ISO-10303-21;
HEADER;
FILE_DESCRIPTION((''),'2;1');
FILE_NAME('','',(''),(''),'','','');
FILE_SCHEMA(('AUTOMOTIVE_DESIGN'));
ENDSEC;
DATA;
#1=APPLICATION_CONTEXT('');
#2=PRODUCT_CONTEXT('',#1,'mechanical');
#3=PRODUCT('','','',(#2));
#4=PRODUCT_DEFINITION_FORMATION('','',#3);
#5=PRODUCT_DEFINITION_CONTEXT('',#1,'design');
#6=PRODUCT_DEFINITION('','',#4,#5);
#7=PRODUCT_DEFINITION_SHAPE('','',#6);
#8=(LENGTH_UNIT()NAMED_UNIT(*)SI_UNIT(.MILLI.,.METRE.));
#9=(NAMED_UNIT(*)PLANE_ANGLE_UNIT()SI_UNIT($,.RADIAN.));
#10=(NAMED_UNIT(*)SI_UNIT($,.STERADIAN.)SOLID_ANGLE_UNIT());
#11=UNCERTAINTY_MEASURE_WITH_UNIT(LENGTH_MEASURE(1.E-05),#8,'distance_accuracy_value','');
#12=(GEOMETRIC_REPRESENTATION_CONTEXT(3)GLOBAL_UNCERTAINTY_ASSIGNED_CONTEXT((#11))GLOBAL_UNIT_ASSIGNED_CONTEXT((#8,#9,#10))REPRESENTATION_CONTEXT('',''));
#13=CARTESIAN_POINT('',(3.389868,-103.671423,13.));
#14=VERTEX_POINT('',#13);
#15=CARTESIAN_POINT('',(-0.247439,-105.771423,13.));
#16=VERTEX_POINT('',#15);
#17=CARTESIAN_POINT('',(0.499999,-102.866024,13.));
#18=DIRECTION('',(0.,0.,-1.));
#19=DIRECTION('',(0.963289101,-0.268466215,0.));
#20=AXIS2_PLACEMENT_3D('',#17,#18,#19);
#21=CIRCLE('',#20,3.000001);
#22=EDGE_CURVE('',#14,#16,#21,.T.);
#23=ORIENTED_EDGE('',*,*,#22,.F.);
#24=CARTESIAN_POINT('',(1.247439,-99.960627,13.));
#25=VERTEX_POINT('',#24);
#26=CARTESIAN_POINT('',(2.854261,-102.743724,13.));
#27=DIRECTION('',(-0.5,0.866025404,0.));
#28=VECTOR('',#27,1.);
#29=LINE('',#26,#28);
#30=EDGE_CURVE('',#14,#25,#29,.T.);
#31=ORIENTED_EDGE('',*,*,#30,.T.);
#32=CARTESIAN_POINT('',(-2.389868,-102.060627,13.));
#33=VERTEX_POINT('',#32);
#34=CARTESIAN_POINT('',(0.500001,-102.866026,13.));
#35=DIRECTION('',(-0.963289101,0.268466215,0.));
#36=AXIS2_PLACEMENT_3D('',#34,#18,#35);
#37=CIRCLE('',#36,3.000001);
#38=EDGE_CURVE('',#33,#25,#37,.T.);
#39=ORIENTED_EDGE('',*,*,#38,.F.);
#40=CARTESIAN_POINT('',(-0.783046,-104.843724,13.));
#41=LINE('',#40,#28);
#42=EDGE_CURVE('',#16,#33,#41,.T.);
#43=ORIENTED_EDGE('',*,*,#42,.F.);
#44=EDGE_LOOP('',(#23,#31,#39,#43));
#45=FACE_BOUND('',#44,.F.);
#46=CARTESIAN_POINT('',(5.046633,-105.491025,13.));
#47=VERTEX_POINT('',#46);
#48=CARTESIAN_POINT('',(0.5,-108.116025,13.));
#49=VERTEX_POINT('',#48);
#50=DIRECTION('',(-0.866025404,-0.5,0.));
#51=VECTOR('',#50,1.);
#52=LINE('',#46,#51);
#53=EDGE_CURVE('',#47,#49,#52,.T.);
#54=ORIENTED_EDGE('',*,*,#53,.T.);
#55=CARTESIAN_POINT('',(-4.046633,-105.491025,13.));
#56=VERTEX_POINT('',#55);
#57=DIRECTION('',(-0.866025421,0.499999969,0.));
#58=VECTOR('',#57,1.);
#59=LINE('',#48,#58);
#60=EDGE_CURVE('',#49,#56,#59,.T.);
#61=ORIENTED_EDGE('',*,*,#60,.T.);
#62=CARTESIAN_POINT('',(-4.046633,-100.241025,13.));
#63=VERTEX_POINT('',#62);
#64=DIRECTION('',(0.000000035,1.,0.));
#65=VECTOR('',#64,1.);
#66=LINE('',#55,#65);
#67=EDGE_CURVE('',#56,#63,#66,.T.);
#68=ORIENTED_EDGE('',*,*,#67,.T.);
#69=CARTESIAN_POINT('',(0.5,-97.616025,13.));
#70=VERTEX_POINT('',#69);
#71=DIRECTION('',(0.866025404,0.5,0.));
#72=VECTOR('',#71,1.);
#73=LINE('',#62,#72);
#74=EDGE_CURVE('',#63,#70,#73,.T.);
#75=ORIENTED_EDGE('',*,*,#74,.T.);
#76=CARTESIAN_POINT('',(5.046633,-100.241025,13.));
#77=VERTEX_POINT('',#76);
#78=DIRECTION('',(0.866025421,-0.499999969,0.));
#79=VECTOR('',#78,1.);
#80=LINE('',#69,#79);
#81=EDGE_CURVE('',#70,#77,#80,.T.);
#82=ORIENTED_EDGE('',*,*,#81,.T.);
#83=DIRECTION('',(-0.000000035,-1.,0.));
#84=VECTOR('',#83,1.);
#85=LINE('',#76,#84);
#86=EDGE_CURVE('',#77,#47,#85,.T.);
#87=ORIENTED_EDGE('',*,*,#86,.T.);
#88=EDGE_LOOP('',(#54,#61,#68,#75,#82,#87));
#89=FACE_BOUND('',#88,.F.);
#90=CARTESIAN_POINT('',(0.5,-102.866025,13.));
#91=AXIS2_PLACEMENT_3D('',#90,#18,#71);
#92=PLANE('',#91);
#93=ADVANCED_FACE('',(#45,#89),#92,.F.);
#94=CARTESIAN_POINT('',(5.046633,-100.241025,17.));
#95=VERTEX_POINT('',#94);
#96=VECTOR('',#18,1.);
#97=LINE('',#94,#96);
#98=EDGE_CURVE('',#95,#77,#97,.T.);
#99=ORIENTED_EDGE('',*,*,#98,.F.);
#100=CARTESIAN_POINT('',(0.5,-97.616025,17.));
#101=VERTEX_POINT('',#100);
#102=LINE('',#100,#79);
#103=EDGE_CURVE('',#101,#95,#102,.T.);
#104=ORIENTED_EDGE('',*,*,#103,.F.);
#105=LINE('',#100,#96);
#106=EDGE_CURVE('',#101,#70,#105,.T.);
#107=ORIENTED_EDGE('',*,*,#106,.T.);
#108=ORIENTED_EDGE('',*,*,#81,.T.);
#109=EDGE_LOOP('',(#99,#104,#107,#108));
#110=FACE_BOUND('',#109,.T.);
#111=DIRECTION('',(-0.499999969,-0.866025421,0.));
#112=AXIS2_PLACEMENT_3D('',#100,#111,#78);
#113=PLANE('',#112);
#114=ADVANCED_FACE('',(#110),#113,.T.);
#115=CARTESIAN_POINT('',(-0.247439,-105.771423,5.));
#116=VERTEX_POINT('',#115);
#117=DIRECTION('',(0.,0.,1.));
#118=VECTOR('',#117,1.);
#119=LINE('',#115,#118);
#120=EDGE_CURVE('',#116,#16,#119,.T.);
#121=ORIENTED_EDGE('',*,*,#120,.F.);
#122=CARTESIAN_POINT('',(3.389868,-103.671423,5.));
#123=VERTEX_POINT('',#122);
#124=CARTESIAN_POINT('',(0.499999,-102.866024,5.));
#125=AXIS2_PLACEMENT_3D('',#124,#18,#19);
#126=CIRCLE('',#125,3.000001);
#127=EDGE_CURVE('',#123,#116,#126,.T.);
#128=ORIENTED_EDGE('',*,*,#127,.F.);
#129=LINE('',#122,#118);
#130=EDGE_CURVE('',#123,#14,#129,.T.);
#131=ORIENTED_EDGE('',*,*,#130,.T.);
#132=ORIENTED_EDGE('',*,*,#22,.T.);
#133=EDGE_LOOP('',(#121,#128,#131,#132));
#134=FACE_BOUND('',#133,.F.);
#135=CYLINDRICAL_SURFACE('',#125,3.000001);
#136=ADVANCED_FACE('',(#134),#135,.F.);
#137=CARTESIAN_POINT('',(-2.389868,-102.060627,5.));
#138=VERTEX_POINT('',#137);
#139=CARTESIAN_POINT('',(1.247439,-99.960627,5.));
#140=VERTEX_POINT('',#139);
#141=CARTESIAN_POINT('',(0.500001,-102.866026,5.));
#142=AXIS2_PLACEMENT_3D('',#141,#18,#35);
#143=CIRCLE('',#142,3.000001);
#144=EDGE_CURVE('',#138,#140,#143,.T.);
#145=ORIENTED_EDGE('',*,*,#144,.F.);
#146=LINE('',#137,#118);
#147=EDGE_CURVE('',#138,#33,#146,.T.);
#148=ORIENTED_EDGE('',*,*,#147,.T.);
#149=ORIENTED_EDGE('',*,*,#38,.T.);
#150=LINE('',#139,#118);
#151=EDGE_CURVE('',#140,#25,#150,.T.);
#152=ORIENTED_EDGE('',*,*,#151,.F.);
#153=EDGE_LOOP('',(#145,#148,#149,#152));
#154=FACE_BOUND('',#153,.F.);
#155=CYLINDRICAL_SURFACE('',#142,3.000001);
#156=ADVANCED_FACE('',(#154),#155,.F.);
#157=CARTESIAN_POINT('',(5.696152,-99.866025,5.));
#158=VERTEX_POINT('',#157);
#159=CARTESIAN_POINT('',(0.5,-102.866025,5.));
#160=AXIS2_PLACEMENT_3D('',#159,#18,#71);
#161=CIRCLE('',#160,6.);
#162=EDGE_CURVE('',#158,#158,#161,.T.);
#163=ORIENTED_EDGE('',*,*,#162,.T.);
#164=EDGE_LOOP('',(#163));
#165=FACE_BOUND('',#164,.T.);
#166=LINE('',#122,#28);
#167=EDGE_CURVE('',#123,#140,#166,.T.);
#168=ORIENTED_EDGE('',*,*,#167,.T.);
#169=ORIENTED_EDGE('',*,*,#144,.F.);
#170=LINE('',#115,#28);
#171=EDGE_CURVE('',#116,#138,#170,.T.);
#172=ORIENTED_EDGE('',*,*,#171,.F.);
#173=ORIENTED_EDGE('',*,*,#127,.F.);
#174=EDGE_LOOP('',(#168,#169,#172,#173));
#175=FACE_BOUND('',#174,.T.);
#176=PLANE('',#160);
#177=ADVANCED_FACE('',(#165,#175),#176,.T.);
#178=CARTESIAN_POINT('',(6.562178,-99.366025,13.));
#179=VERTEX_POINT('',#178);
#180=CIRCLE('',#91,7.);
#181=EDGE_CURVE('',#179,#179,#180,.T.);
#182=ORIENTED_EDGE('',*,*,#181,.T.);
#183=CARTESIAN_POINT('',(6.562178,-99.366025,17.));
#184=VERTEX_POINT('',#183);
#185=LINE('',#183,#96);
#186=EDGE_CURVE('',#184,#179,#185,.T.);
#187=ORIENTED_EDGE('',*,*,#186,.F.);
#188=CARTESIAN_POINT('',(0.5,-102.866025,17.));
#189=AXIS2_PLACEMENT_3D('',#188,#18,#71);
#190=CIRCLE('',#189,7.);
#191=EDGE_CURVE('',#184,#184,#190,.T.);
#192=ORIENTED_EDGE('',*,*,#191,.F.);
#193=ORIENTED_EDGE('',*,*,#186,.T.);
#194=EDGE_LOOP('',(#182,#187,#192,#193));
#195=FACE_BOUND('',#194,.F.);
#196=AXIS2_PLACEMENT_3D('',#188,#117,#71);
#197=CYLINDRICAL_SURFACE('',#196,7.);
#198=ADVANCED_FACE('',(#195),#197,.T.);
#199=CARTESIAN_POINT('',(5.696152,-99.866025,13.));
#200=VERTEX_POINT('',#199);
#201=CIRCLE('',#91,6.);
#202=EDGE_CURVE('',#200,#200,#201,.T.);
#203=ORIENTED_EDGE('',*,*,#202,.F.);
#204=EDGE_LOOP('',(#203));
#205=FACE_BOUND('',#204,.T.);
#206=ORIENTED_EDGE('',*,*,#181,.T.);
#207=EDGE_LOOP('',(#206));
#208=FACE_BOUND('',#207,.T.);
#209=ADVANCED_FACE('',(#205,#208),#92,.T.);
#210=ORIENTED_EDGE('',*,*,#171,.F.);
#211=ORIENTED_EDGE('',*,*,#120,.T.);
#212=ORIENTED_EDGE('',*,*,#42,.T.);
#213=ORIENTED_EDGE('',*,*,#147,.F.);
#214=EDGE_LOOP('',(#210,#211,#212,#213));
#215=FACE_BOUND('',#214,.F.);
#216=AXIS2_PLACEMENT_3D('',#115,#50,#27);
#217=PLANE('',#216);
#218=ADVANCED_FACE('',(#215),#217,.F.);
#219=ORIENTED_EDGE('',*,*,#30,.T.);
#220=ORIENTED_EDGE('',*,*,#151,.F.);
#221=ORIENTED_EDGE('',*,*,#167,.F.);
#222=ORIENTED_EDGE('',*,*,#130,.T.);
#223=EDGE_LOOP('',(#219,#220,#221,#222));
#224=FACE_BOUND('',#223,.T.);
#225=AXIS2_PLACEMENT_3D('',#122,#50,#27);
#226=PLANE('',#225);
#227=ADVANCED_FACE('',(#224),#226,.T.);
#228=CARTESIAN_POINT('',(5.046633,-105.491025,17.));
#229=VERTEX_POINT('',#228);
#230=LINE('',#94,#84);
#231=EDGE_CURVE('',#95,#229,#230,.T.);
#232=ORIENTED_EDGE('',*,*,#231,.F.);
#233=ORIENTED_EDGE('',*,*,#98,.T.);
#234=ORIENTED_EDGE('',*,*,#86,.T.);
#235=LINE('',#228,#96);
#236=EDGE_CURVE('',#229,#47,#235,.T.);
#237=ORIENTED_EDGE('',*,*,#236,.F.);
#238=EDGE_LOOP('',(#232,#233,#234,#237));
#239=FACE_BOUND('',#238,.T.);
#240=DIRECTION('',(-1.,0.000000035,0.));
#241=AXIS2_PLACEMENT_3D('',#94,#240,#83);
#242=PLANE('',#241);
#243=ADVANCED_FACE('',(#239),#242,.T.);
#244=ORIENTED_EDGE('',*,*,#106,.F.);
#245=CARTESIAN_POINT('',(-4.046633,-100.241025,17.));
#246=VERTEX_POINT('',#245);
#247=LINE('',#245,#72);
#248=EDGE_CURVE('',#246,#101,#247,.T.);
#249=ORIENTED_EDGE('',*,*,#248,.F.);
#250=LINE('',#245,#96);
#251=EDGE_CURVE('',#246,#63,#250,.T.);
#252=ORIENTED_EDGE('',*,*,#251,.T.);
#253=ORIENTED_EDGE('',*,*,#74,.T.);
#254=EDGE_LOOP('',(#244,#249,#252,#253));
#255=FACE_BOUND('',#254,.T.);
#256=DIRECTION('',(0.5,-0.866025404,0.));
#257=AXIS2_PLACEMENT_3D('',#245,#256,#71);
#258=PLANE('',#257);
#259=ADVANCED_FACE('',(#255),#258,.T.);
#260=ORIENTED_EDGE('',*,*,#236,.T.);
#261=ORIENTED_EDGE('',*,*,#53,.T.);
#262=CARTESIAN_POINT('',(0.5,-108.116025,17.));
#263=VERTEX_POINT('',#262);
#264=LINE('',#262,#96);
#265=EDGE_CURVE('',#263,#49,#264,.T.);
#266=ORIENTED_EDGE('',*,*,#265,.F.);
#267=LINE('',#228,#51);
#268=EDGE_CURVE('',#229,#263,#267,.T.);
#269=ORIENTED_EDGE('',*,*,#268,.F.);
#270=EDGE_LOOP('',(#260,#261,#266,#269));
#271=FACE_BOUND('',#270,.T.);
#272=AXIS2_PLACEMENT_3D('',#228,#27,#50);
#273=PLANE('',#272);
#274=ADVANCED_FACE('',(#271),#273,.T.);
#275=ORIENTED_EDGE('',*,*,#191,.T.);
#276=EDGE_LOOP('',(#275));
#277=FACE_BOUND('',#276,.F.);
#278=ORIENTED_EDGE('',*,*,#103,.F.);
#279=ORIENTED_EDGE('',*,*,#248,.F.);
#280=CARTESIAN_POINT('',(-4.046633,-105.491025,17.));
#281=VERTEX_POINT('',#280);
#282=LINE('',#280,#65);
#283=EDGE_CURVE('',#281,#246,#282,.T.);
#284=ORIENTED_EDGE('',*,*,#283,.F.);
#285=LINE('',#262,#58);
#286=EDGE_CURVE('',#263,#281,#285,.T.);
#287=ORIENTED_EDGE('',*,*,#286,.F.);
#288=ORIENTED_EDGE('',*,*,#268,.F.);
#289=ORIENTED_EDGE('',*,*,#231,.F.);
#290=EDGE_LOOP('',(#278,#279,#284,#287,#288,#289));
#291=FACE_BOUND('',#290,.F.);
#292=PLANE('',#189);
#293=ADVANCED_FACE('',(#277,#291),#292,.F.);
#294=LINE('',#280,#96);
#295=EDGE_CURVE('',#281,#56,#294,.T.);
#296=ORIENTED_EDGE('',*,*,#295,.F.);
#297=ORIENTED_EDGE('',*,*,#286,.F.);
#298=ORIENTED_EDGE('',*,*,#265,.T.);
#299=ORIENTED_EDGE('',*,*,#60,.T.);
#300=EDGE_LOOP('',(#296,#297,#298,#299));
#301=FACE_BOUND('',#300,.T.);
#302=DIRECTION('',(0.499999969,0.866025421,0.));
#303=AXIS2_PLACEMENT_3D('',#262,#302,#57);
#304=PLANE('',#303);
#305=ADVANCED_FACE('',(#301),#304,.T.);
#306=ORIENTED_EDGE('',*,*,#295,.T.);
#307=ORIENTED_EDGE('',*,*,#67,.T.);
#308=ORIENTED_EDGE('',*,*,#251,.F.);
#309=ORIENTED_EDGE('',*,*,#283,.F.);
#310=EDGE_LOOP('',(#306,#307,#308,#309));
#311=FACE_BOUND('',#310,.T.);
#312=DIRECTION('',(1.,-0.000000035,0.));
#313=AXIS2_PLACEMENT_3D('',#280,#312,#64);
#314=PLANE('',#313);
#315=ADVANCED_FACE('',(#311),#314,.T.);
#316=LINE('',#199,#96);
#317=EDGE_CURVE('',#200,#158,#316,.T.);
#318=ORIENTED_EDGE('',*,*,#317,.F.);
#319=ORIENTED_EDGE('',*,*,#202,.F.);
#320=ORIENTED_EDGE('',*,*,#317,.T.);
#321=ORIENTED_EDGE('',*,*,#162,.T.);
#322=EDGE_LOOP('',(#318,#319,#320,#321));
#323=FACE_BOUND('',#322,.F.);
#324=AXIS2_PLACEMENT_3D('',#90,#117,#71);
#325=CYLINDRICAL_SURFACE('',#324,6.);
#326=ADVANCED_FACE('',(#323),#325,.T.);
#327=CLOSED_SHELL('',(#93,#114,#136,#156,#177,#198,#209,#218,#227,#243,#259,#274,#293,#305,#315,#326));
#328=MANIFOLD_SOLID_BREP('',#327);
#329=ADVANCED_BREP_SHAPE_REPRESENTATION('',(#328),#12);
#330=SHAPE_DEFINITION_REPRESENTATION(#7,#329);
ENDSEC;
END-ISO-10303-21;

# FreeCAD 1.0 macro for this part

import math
import FreeCAD as App
import Part
import Sketcher

V = App.Vector
Q = App.Units.Quantity

doc = App.newDocument("Part")
body = doc.addObject("PartDesign::Body", "Body")

# Sketch on XZ plane
sketch1 = doc.addObject("Sketcher::SketchObject", "Sketch")
body.addObject(sketch1)
sketch1.AttachmentSupport = (doc.XZ_Plane, [""])
sketch1.MapMode = "FlatFace"
sketch1.addGeometry([
    Part.Circle(V(0, 0, 0), V(0, 0, 1), 7),  # 0
    Part.LineSegment(V(2.625, 4.546633, 0), V(5.25, 0, 0)),  # 1
    Part.LineSegment(V(5.25, 0, 0), V(2.625, -4.546633, 0)),  # 2
    Part.LineSegment(V(2.625, -4.546633, 0), V(-2.625, -4.546633, 0)),  # 3
    Part.LineSegment(V(-2.625, -4.546633, 0), V(-5.25, 0, 0)),  # 4
    Part.LineSegment(V(-5.25, 0, 0), V(-2.625, 4.546633, 0)),  # 5
    Part.LineSegment(V(-2.625, 4.546633, 0), V(2.625, 4.546633, 0)),  # 6
], False)
sketch1.addConstraint([
    Sketcher.Constraint("Coincident", 1, 2, 2, 1),
    Sketcher.Constraint("Coincident", 2, 2, 3, 1),
    Sketcher.Constraint("Coincident", 3, 2, 4, 1),
    Sketcher.Constraint("Coincident", 4, 2, 5, 1),
    Sketcher.Constraint("Coincident", 5, 2, 6, 1),
    Sketcher.Constraint("Coincident", 6, 2, 1, 1),
    Sketcher.Constraint("Horizontal", 3),
    Sketcher.Constraint("Horizontal", 6),
    Sketcher.Constraint("Coincident", 0, 3, -1, 1),
    Sketcher.Constraint("Symmetric", 1, 2, 4, 2, -1, 1),
    Sketcher.Constraint("Symmetric", 2, 2, 5, 2, -1, 1),
    Sketcher.Constraint("PointOnObject", 1, 2, -1),
    Sketcher.Constraint("Parallel", 1, 4),
    Sketcher.Constraint("Vertical", 3, 2, 5, 2),
    Sketcher.Constraint("Diameter", 0, 14.0),
    Sketcher.Constraint("Angle", 1, Q("-59.999998 deg")),
    Sketcher.Constraint("DistanceX", 3, 2, 3, 1, 5.25),
    Sketcher.Constraint("DistanceX", 4, 2, 1, 2, 10.5),
])
pad1 = doc.addObject("PartDesign::Pad", "Pad")
body.addObject(pad1)
pad1.Profile = sketch1
pad1.Length = 4

# Sketch on XZ plane
sketch2 = doc.addObject("Sketcher::SketchObject", "Sketch001")
body.addObject(sketch2)
sketch2.AttachmentSupport = (doc.XZ_Plane, [""])
sketch2.MapMode = "FlatFace"
sketch2.AttachmentOffset = App.Placement(V(0, 0, 4), App.Rotation())
sketch2.addGeometry(Part.Circle(V(0, 0, 0), V(0, 0, 1), 6), False)
sketch2.addConstraint([
    Sketcher.Constraint("Coincident", 0, 3, -1, 1),
    Sketcher.Constraint("Diameter", 0, 12.0),
])
pad2 = doc.addObject("PartDesign::Pad", "Pad001")
body.addObject(pad2)
pad2.Profile = sketch2
pad2.Length = 8

# Sketch on XZ plane
sketch3 = doc.addObject("Sketcher::SketchObject", "Sketch002")
body.addObject(sketch3)
sketch3.AttachmentSupport = (doc.XZ_Plane, [""])
sketch3.MapMode = "FlatFace"
sketch3.AttachmentOffset = App.Placement(V(0, 0, 12), App.Rotation())
sketch3.addGeometry([
    Part.ArcOfCircle(Part.Circle(V(0, -0.000001, 0), V(0, 0, 1), 3.000001), math.radians(45.573018), math.radians(134.426982)),
    Part.LineSegment(V(-2.1, 2.142429, 0), V(-2.1, -2.142429, 0)),
    Part.ArcOfCircle(Part.Circle(V(0, 0.000001, 0), V(0, 0, 1), 3.000001), math.radians(-134.426982), math.radians(-45.573018)),
    Part.LineSegment(V(2.1, -2.142429, 0), V(2.1, 2.142429, 0)),
], False)
sketch3.addConstraint([
    Sketcher.Constraint("Coincident", 0, 2, 1, 1),
    Sketcher.Constraint("Coincident", 1, 2, 2, 1),
    Sketcher.Constraint("Coincident", 2, 2, 3, 1),
    Sketcher.Constraint("Coincident", 3, 2, 0, 1),
    Sketcher.Constraint("Vertical", 1),
    Sketcher.Constraint("Vertical", 3),
    Sketcher.Constraint("Coincident", 0, 3, -1, 1),
    Sketcher.Constraint("Coincident", 2, 3, -1, 1),
    Sketcher.Constraint("Equal", 0, 2),
    Sketcher.Constraint("Horizontal", 1, 2, 2, 2),
    Sketcher.Constraint("Radius", 0, 3.000001),
    Sketcher.Constraint("DistanceX", 0, 2, -1, 1, 2.1),
])
pocket1 = doc.addObject("PartDesign::Pocket", "Pocket")
body.addObject(pocket1)
pocket1.Profile = sketch3
pocket1.Length = 20
body2 = doc.addObject("PartDesign::Body", "Body001")
doc.recompute()

body.Placement = App.Placement(V(0, 0, 0), App.Rotation(V(1, 0, 0), 90))
boolean = doc.addObject("PartDesign::Boolean", "Boolean")
body2.addObject(boolean)
boolean.Type = "Fuse"
boolean.addObjects([body])
body3 = doc.addObject("PartDesign::Body", "Body002")
doc.recompute()

body2.Placement = App.Placement(V(0.5, -102.866025, 17), App.Rotation(V(0, 0, 1), 30))
boolean2 = doc.addObject("PartDesign::Boolean", "Boolean001")
body3.addObject(boolean2)
boolean2.Type = "Fuse"
boolean2.addObjects([body2])

doc.recompute()
